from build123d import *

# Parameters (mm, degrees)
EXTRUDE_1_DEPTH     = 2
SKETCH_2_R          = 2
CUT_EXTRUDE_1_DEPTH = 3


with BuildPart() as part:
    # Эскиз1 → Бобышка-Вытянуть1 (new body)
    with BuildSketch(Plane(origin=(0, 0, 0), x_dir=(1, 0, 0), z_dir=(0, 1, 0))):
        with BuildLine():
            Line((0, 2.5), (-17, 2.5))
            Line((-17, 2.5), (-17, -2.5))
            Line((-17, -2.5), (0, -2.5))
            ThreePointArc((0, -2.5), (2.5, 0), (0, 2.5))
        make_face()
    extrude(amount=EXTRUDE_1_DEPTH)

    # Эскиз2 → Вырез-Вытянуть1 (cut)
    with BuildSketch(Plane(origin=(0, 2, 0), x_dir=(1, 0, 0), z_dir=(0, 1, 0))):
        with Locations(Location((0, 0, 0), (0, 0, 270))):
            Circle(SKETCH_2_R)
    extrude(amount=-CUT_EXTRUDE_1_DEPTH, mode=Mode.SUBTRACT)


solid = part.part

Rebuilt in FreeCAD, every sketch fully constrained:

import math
import FreeCAD as App
import Part
import Sketcher

V = App.Vector

doc = App.newDocument("Part")
body = doc.addObject("PartDesign::Body", "Body")

# Sketch on XZ plane
sketch1 = body.newObject("Sketcher::SketchObject", "Sketch")
sketch1.AttachmentSupport = (doc.getObject("XZ_Plane"), [""])
sketch1.MapMode = "FlatFace"
sketch1.addGeometry([
    Part.LineSegment(V(0, -2.5, 0), V(-17, -2.5, 0)),
    Part.LineSegment(V(-17, -2.5, 0), V(-17, 2.5, 0)),
    Part.LineSegment(V(-17, 2.5, 0), V(0, 2.5, 0)),
    Part.ArcOfCircle(Part.Circle(V(0, 0, 0), V(0, 0, 1), 2.5), math.radians(-90), math.radians(90)),
], False)
sketch1.addConstraint([
    Sketcher.Constraint("Coincident", 0, 2, 1, 1),
    Sketcher.Constraint("Coincident", 1, 2, 2, 1),
    Sketcher.Constraint("Tangent", 2, 2, 3, 2),
    Sketcher.Constraint("Tangent", 3, 1, 0, 1),
    Sketcher.Constraint("Horizontal", 0),
    Sketcher.Constraint("Vertical", 1),
    Sketcher.Constraint("Horizontal", 2),
    Sketcher.Constraint("Coincident", 3, 3, -1, 1),
    Sketcher.Constraint("Radius", 3, 2.5),
    Sketcher.Constraint("DistanceX", 0, 2, 0, 1, 17.0),
])
pad1 = body.newObject("PartDesign::Pad", "Pad")
pad1.Profile = sketch1
pad1.Length = 2
pad1.Reversed = True

# Sketch on XZ plane
sketch2 = body.newObject("Sketcher::SketchObject", "Sketch001")
sketch2.AttachmentSupport = (doc.getObject("XZ_Plane"), [""])
sketch2.MapMode = "FlatFace"
sketch2.AttachmentOffset = App.Placement(V(0, 0, -2), App.Rotation())
sketch2.addGeometry(Part.Circle(V(0, 0, 0), V(0, 0, 1), 2), False)
sketch2.addConstraint([
    Sketcher.Constraint("Coincident", 0, 3, -1, 1),
    Sketcher.Constraint("Diameter", 0, 4.0),
])
pocket1 = body.newObject("PartDesign::Pocket", "Pocket")
pocket1.Profile = sketch2
pocket1.Length = 3
pocket1.Reversed = True

doc.recompute()
